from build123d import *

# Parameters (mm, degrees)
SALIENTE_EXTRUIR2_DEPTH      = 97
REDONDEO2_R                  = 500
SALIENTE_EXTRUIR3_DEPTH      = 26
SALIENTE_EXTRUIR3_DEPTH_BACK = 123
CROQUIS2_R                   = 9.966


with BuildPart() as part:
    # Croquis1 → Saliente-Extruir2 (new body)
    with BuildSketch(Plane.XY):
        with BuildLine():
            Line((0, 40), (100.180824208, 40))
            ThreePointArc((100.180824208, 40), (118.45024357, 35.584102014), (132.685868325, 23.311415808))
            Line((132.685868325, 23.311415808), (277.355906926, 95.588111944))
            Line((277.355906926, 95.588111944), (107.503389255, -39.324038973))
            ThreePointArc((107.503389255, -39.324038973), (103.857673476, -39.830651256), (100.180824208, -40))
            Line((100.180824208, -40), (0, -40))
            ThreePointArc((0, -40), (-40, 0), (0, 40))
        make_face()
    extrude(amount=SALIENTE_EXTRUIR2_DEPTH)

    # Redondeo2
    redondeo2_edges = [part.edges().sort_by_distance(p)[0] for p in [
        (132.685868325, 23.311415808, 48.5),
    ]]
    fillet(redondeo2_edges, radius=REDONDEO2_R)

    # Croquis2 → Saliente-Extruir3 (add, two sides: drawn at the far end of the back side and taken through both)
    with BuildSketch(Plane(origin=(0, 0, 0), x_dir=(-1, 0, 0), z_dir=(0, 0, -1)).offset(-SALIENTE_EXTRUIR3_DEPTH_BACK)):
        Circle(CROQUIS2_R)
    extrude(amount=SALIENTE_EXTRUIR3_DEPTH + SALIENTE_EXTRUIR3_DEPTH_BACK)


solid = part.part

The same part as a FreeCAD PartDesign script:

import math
import FreeCAD as App
import Part
import Sketcher
Q = App.Units.Quantity


def edges_at(feature, points):
    """Names of the edges that pass closest to the given points."""
    edges = feature.Shape.Edges
    near = lambda p: min(range(len(edges)), key=lambda i: edges[i].distToShape(Part.Vertex(*p))[0])
    return sorted({f"Edge{near(p) + 1}" for p in points})

doc = App.newDocument("Part")
body = doc.addObject("PartDesign::Body", "Body")

sketch1 = doc.addObject("Sketcher::SketchObject", "Sketch")
body.addObject(sketch1)
sketch1.AttachmentSupport = (doc.XY_Plane, [""])
sketch1.MapMode = "FlatFace"
sketch1.addGeometry([
    Part.LineSegment(App.Vector(100.180824, 40, 0), App.Vector(0, 40, 0)),
    Part.ArcOfCircle(Part.Circle(App.Vector(0, 0, 0), App.Vector(0, 0, 1), 40), math.radians(90), math.radians(270)),
    Part.LineSegment(App.Vector(0, -40, 0), App.Vector(100.180824, -40, 0)),
    Part.ArcOfCircle(Part.Circle(App.Vector(100.180824, 0, 0), App.Vector(0, 0, 1), 40), math.radians(-90), math.radians(-79.451712)),
    Part.LineSegment(App.Vector(107.503389, -39.324039, 0), App.Vector(277.355907, 95.588112, 0)),
    Part.LineSegment(App.Vector(277.355907, 95.588112, 0), App.Vector(132.685868, 23.311416, 0)),
    Part.ArcOfCircle(Part.Circle(App.Vector(100.180824, 0, 0), App.Vector(0, 0, 1), 40), math.radians(35.646692), math.radians(90)),
], False)
sketch1.addConstraint([
    Sketcher.Constraint("Tangent", 0, 2, 1, 1),
    Sketcher.Constraint("Tangent", 1, 2, 2, 1),
    Sketcher.Constraint("Tangent", 2, 2, 3, 1),
    Sketcher.Constraint("Coincident", 3, 2, 4, 1),
    Sketcher.Constraint("Coincident", 4, 2, 5, 1),
    Sketcher.Constraint("Coincident", 5, 2, 6, 1),
    Sketcher.Constraint("Tangent", 6, 2, 0, 1),
    Sketcher.Constraint("Horizontal", 0),
    Sketcher.Constraint("Horizontal", 2),
    Sketcher.Constraint("Coincident", 1, 3, -1, 1),
    Sketcher.Constraint("Coincident", 6, 3, 3, 3),
    Sketcher.Constraint("Equal", 1, 3),
    Sketcher.Constraint("Radius", 1, Q("40 mm")),
    Sketcher.Constraint("DistanceX", 0, 2, 0, 1, Q("100.180824 mm")),
    Sketcher.Constraint("DistanceX", -1, 1, 3, 2, Q("107.503389 mm")),
    Sketcher.Constraint("DistanceY", -1, 1, 4, 2, Q("95.588112 mm")),
    Sketcher.Constraint("DistanceX", -1, 1, 5, 2, Q("132.685868 mm")),
    Sketcher.Constraint("Distance", 4, Q("216.912808 mm")),
])
pad1 = doc.addObject("PartDesign::Pad", "Pad")
body.addObject(pad1)
pad1.Profile = sketch1
pad1.Length = 97
doc.recompute()

fillet = doc.addObject("PartDesign::Fillet", "Fillet")
body.addObject(fillet)
fillet.Base = (pad1, edges_at(pad1, [(132.686, 23.311, 48.5)]))
fillet.Radius = 500

sketch2 = doc.addObject("Sketcher::SketchObject", "Sketch001")
body.addObject(sketch2)
sketch2.AttachmentSupport = (doc.XY_Plane, [""])
sketch2.MapMode = "FlatFace"
sketch2.addGeometry(Part.Circle(App.Vector(0, 0, 0), App.Vector(0, 0, 1), 9.966), False)
sketch2.addConstraint([
    Sketcher.Constraint("Coincident", 0, 3, -1, 1),
    Sketcher.Constraint("Diameter", 0, Q("19.932 mm")),
])
pad2 = doc.addObject("PartDesign::Pad", "Pad001")
body.addObject(pad2)
pad2.Profile = sketch2
pad2.Type = "TwoLengths"
pad2.Length = 26
pad2.Length2 = 123
pad2.Reversed = True

doc.recompute()
